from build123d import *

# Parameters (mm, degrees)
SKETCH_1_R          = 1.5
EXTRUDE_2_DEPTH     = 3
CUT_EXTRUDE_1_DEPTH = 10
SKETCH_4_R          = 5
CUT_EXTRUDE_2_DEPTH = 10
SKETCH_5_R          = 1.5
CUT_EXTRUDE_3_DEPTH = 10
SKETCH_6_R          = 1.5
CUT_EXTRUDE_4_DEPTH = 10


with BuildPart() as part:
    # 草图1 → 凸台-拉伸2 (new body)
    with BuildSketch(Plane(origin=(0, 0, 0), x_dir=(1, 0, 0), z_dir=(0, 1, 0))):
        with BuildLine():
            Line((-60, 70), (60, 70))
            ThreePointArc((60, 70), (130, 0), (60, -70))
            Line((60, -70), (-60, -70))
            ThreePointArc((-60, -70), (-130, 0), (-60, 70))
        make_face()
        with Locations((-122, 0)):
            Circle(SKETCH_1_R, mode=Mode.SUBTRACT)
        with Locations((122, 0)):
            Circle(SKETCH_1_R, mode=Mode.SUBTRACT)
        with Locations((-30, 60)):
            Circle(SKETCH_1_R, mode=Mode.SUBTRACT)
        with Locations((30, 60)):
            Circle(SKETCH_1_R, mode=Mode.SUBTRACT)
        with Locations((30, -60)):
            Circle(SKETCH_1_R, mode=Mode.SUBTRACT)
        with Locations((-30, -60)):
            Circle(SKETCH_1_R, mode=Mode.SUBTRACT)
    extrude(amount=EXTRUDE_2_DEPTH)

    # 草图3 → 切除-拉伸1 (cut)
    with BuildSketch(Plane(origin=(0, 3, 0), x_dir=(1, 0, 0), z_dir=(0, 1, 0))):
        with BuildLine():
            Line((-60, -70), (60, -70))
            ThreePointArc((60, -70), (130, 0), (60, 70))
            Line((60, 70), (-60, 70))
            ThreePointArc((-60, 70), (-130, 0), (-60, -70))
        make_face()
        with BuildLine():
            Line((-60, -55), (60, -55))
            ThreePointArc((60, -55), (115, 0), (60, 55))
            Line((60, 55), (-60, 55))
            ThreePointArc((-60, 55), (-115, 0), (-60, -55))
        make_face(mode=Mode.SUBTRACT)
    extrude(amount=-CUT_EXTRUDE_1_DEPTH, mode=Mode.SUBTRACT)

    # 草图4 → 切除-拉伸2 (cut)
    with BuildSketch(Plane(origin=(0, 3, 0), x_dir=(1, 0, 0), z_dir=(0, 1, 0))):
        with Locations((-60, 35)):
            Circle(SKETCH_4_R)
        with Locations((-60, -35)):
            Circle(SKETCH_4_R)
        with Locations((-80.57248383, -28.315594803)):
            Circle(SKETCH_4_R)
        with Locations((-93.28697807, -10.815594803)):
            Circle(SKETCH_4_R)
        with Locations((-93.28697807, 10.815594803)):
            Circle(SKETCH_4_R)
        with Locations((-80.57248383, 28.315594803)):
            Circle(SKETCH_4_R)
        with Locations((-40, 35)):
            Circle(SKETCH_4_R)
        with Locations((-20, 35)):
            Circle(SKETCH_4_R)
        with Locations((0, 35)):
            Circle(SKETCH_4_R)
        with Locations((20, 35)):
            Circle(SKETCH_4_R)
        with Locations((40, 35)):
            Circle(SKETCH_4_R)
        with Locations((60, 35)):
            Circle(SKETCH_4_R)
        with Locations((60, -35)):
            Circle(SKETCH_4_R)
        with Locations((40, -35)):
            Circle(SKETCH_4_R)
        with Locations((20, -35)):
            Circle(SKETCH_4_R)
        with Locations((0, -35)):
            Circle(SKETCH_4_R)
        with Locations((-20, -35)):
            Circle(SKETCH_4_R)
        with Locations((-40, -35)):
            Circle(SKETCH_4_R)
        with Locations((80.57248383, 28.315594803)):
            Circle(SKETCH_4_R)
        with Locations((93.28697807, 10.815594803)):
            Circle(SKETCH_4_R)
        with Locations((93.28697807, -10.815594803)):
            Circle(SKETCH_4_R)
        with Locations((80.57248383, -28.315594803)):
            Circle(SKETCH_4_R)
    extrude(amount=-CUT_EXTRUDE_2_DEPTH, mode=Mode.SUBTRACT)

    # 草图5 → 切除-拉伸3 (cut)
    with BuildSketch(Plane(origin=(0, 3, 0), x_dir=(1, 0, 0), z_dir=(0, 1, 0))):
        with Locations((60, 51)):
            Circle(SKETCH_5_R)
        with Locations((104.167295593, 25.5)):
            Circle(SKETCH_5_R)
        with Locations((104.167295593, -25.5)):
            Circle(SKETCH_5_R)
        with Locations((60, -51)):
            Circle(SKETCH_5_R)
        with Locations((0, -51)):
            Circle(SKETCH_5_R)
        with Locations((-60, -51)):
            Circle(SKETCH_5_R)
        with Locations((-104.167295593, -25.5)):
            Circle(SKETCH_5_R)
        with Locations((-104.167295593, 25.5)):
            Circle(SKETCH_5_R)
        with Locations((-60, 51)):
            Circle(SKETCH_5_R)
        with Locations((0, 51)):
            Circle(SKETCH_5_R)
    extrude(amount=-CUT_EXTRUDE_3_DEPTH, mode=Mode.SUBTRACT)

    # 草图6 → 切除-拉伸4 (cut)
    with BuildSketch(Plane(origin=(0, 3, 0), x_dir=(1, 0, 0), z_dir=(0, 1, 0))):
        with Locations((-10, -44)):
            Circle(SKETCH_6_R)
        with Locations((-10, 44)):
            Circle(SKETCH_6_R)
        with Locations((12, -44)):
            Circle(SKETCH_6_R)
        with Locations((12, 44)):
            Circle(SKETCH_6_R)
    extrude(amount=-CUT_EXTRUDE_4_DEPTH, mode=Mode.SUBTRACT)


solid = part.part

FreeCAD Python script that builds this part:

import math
import FreeCAD as App
import Part
import Sketcher
from FreeCAD import Vector

doc = App.newDocument("Part")
params = doc.addObject("Spreadsheet::Sheet", "Params")
for row, (alias, value) in enumerate([
    ("sketch1_diameter", "3 mm"),
    ("sketch1_radius", "70 mm"),
    ("sketch1_width", "120 mm"),
    ("pad1_length", "3 mm"),
    ("sketch2_radius", "70 mm"),
    ("sketch2_radius2", "55 mm"),
    ("sketch2_width", "120 mm"),
    ("pocket1_length", "10 mm"),
    ("sketch3_diameter", "10 mm"),
    ("pocket2_length", "10 mm"),
    ("sketch4_diameter", "3 mm"),
    ("pocket3_length", "10 mm"),
    ("sketch5_diameter", "3 mm"),
    ("pocket4_length", "10 mm"),
], start=1):
    params.set(f"A{row}", alias)
    params.set(f"B{row}", "=" + value)
    params.setAlias(f"B{row}", alias)

body = doc.addObject("PartDesign::Body", "Body")

sketch1 = body.newObject("Sketcher::SketchObject", "Sketch")
sketch1.AttachmentSupport = (doc.getObject("XZ_Plane"), [""])
sketch1.MapMode = "FlatFace"
sketch1.addGeometry(Part.LineSegment(Vector(60, -70, 0), Vector(-60, -70, 0)), False)
sketch1.addGeometry(Part.ArcOfCircle(Part.Circle(Vector(-60, 0, 0), Vector(0, 0, 1), 70), math.radians(90), math.radians(270)), False)
sketch1.addGeometry(Part.LineSegment(Vector(-60, 70, 0), Vector(60, 70, 0)), False)
sketch1.addGeometry(Part.ArcOfCircle(Part.Circle(Vector(60, 0, 0), Vector(0, 0, 1), 70), math.radians(-90), math.radians(90)), False)
sketch1.addGeometry(Part.Circle(Vector(30, 60, 0), Vector(0, 0, 1), 1.5), False)
sketch1.addGeometry(Part.Circle(Vector(-30, 60, 0), Vector(0, 0, 1), 1.5), False)
sketch1.addGeometry(Part.Circle(Vector(122, 0, 0), Vector(0, 0, 1), 1.5), False)
sketch1.addGeometry(Part.Circle(Vector(30, -60, 0), Vector(0, 0, 1), 1.5), False)
sketch1.addGeometry(Part.Circle(Vector(-122, 0, 0), Vector(0, 0, 1), 1.5), False)
sketch1.addGeometry(Part.Circle(Vector(-30, -60, 0), Vector(0, 0, 1), 1.5), False)
sketch1.addConstraint(Sketcher.Constraint("Tangent", 0, 2, 1, 2))
sketch1.addConstraint(Sketcher.Constraint("Tangent", 1, 1, 2, 1))
sketch1.addConstraint(Sketcher.Constraint("Tangent", 2, 2, 3, 2))
sketch1.addConstraint(Sketcher.Constraint("Tangent", 3, 1, 0, 1))
sketch1.addConstraint(Sketcher.Constraint("Horizontal", 0))
sketch1.addConstraint(Sketcher.Constraint("Horizontal", 2))
sketch1.addConstraint(Sketcher.Constraint("Equal", 4, 5))
sketch1.addConstraint(Sketcher.Constraint("Equal", 5, 6))
sketch1.addConstraint(Sketcher.Constraint("Equal", 6, 7))
sketch1.addConstraint(Sketcher.Constraint("Equal", 7, 8))
sketch1.addConstraint(Sketcher.Constraint("Equal", 8, 9))
sketch1.addConstraint(Sketcher.Constraint("Symmetric", 1, 3, 3, 3, -1, 1))
sketch1.addConstraint(Sketcher.Constraint("Symmetric", 5, 3, 7, 3, -1, 1))
sketch1.addConstraint(Sketcher.Constraint("Symmetric", 6, 3, 8, 3, -1, 1))
sketch1.addConstraint(Sketcher.Constraint("Symmetric", 4, 3, 9, 3, -1, 1))
sketch1.addConstraint(Sketcher.Constraint("Symmetric", 4, 3, 5, 3, -2))
sketch1.addConstraint(Sketcher.Constraint("PointOnObject", 6, 3, -1))
sketch1.addConstraint(Sketcher.Constraint("Diameter", 4, 3.0))
sketch1.addConstraint(Sketcher.Constraint("Radius", 1, 70.0))
sketch1.addConstraint(Sketcher.Constraint("DistanceX", 0, 2, 0, 1, 120.0))
sketch1.addConstraint(Sketcher.Constraint("DistanceX", -1, 1, 4, 3, 30.0))
sketch1.addConstraint(Sketcher.Constraint("DistanceY", -1, 1, 4, 3, 60.0))
sketch1.addConstraint(Sketcher.Constraint("DistanceX", -1, 1, 6, 3, 122.0))
sketch1.setExpression("Constraints[17]", "Params.sketch1_diameter")
sketch1.setExpression("Constraints[18]", "Params.sketch1_radius")
sketch1.setExpression("Constraints[19]", "Params.sketch1_width")
pad1 = body.newObject("PartDesign::Pad", "Pad")
pad1.Profile = sketch1
pad1.setExpression("Length", "Params.pad1_length")
pad1.Reversed = True

sketch2 = body.newObject("Sketcher::SketchObject", "Sketch001")
sketch2.AttachmentSupport = (doc.getObject("XZ_Plane"), [""])
sketch2.MapMode = "FlatFace"
sketch2.AttachmentOffset = App.Placement(Vector(0, 0, -3), App.Rotation())
sketch2.addGeometry(Part.LineSegment(Vector(-60, 70, 0), Vector(60, 70, 0)), False)
sketch2.addGeometry(Part.ArcOfCircle(Part.Circle(Vector(60, 0, 0), Vector(0, 0, 1), 70), math.radians(-90), math.radians(90)), False)
sketch2.addGeometry(Part.LineSegment(Vector(60, -70, 0), Vector(-60, -70, 0)), False)
sketch2.addGeometry(Part.ArcOfCircle(Part.Circle(Vector(-60, 0, 0), Vector(0, 0, 1), 70), math.radians(90), math.radians(270)), False)
sketch2.addGeometry(Part.LineSegment(Vector(60, 55, 0), Vector(-60, 55, 0)), False)
sketch2.addGeometry(Part.ArcOfCircle(Part.Circle(Vector(-60, 0, 0), Vector(0, 0, 1), 55), math.radians(90), math.radians(270)), False)
sketch2.addGeometry(Part.LineSegment(Vector(-60, -55, 0), Vector(60, -55, 0)), False)
sketch2.addGeometry(Part.ArcOfCircle(Part.Circle(Vector(60, 0, 0), Vector(0, 0, 1), 55), math.radians(-90), math.radians(90)), False)
sketch2.addConstraint(Sketcher.Constraint("Tangent", 0, 2, 1, 2))
sketch2.addConstraint(Sketcher.Constraint("Tangent", 1, 1, 2, 1))
sketch2.addConstraint(Sketcher.Constraint("Tangent", 2, 2, 3, 2))
sketch2.addConstraint(Sketcher.Constraint("Tangent", 3, 1, 0, 1))
sketch2.addConstraint(Sketcher.Constraint("Tangent", 4, 2, 5, 1))
sketch2.addConstraint(Sketcher.Constraint("Tangent", 5, 2, 6, 1))
sketch2.addConstraint(Sketcher.Constraint("Tangent", 6, 2, 7, 1))
sketch2.addConstraint(Sketcher.Constraint("Tangent", 7, 2, 4, 1))
sketch2.addConstraint(Sketcher.Constraint("Horizontal", 0))
sketch2.addConstraint(Sketcher.Constraint("Horizontal", 2))
sketch2.addConstraint(Sketcher.Constraint("Horizontal", 4))
sketch2.addConstraint(Sketcher.Constraint("Horizontal", 6))
sketch2.addConstraint(Sketcher.Constraint("Coincident", 5, 3, 3, 3))
sketch2.addConstraint(Sketcher.Constraint("Symmetric", 1, 3, 3, 3, -1, 1))
sketch2.addConstraint(Sketcher.Constraint("Vertical", 7, 3, 0, 2))
sketch2.addConstraint(Sketcher.Constraint("Radius", 1, 70.0))
sketch2.addConstraint(Sketcher.Constraint("Radius", 5, 55.0))
sketch2.addConstraint(Sketcher.Constraint("DistanceX", 0, 1, 0, 2, 120.0))
sketch2.setExpression("Constraints[15]", "Params.sketch2_radius")
sketch2.setExpression("Constraints[16]", "Params.sketch2_radius2")
sketch2.setExpression("Constraints[17]", "Params.sketch2_width")
pocket1 = body.newObject("PartDesign::Pocket", "Pocket")
pocket1.Profile = sketch2
pocket1.setExpression("Length", "Params.pocket1_length")
pocket1.Reversed = True

sketch3 = body.newObject("Sketcher::SketchObject", "Sketch002")
sketch3.AttachmentSupport = (doc.getObject("XZ_Plane"), [""])
sketch3.MapMode = "FlatFace"
sketch3.AttachmentOffset = App.Placement(Vector(0, 0, -3), App.Rotation())
sketch3.addGeometry(Part.Circle(Vector(-60, -35, 0), Vector(0, 0, 1), 5), False)
sketch3.addGeometry(Part.Circle(Vector(-60, 35, 0), Vector(0, 0, 1), 5), False)
sketch3.addGeometry(Part.Circle(Vector(-81, 28, 0), Vector(0, 0, 1), 5), False)
sketch3.addGeometry(Part.Circle(Vector(-93, 11, 0), Vector(0, 0, 1), 5), False)
sketch3.addGeometry(Part.Circle(Vector(-93, -11, 0), Vector(0, 0, 1), 5), False)
sketch3.addGeometry(Part.Circle(Vector(-81, -28, 0), Vector(0, 0, 1), 5), False)
sketch3.addGeometry(Part.Circle(Vector(-40, -35, 0), Vector(0, 0, 1), 5), False)
sketch3.addGeometry(Part.Circle(Vector(-20, -35, 0), Vector(0, 0, 1), 5), False)
sketch3.addGeometry(Part.Circle(Vector(0, -35, 0), Vector(0, 0, 1), 5), False)
sketch3.addGeometry(Part.Circle(Vector(20, -35, 0), Vector(0, 0, 1), 5), False)
sketch3.addGeometry(Part.Circle(Vector(40, -35, 0), Vector(0, 0, 1), 5), False)
sketch3.addGeometry(Part.Circle(Vector(60, -35, 0), Vector(0, 0, 1), 5), False)
sketch3.addGeometry(Part.Circle(Vector(60, 35, 0), Vector(0, 0, 1), 5), False)
sketch3.addGeometry(Part.Circle(Vector(40, 35, 0), Vector(0, 0, 1), 5), False)
sketch3.addGeometry(Part.Circle(Vector(20, 35, 0), Vector(0, 0, 1), 5), False)
sketch3.addGeometry(Part.Circle(Vector(0, 35, 0), Vector(0, 0, 1), 5), False)
sketch3.addGeometry(Part.Circle(Vector(-20, 35, 0), Vector(0, 0, 1), 5), False)
sketch3.addGeometry(Part.Circle(Vector(-40, 35, 0), Vector(0, 0, 1), 5), False)
sketch3.addGeometry(Part.Circle(Vector(81, -28, 0), Vector(0, 0, 1), 5), False)
sketch3.addGeometry(Part.Circle(Vector(93, -11, 0), Vector(0, 0, 1), 5), False)
sketch3.addGeometry(Part.Circle(Vector(93, 11, 0), Vector(0, 0, 1), 5), False)
sketch3.addGeometry(Part.Circle(Vector(81, 28, 0), Vector(0, 0, 1), 5), False)
sketch3.addConstraint(Sketcher.Constraint("Equal", 0, 1))
sketch3.addConstraint(Sketcher.Constraint("Equal", 1, 2))
sketch3.addConstraint(Sketcher.Constraint("Equal", 2, 3))
sketch3.addConstraint(Sketcher.Constraint("Equal", 3, 4))
sketch3.addConstraint(Sketcher.Constraint("Equal", 4, 5))
sketch3.addConstraint(Sketcher.Constraint("Equal", 5, 6))
sketch3.addConstraint(Sketcher.Constraint("Equal", 6, 7))
sketch3.addConstraint(Sketcher.Constraint("Equal", 7, 8))
sketch3.addConstraint(Sketcher.Constraint("Equal", 8, 9))
sketch3.addConstraint(Sketcher.Constraint("Equal", 9, 10))
sketch3.addConstraint(Sketcher.Constraint("Equal", 10, 11))
sketch3.addConstraint(Sketcher.Constraint("Equal", 11, 12))
sketch3.addConstraint(Sketcher.Constraint("Equal", 12, 13))
sketch3.addConstraint(Sketcher.Constraint("Equal", 13, 14))
sketch3.addConstraint(Sketcher.Constraint("Equal", 14, 15))
sketch3.addConstraint(Sketcher.Constraint("Equal", 15, 16))
sketch3.addConstraint(Sketcher.Constraint("Equal", 16, 17))
sketch3.addConstraint(Sketcher.Constraint("Equal", 17, 18))
sketch3.addConstraint(Sketcher.Constraint("Equal", 18, 19))
sketch3.addConstraint(Sketcher.Constraint("Equal", 19, 20))
sketch3.addConstraint(Sketcher.Constraint("Equal", 20, 21))
sketch3.addConstraint(Sketcher.Constraint("Symmetric", 1, 3, 11, 3, -1, 1))
sketch3.addConstraint(Sketcher.Constraint("Symmetric", 0, 3, 12, 3, -1, 1))
sketch3.addConstraint(Sketcher.Constraint("Symmetric", 6, 3, 13, 3, -1, 1))
sketch3.addConstraint(Sketcher.Constraint("Symmetric", 7, 3, 14, 3, -1, 1))
sketch3.addConstraint(Sketcher.Constraint("Symmetric", 8, 3, 15, 3, -1, 1))
sketch3.addConstraint(Sketcher.Constraint("Symmetric", 9, 3, 16, 3, -1, 1))
sketch3.addConstraint(Sketcher.Constraint("Symmetric", 10, 3, 17, 3, -1, 1))
sketch3.addConstraint(Sketcher.Constraint("Symmetric", 2, 3, 18, 3, -1, 1))
sketch3.addConstraint(Sketcher.Constraint("Symmetric", 3, 3, 19, 3, -1, 1))
sketch3.addConstraint(Sketcher.Constraint("Symmetric", 4, 3, 20, 3, -1, 1))
sketch3.addConstraint(Sketcher.Constraint("Symmetric", 5, 3, 21, 3, -1, 1))
sketch3.addConstraint(Sketcher.Constraint("Symmetric", 7, 3, 9, 3, -2))
sketch3.addConstraint(Sketcher.Constraint("Symmetric", 6, 3, 10, 3, -2))
sketch3.addConstraint(Sketcher.Constraint("Symmetric", 0, 3, 11, 3, -2))
sketch3.addConstraint(Sketcher.Constraint("Symmetric", 5, 3, 18, 3, -2))
sketch3.addConstraint(Sketcher.Constraint("Symmetric", 4, 3, 19, 3, -2))
sketch3.addConstraint(Sketcher.Constraint("PointOnObject", 8, 3, -2))
sketch3.addConstraint(Sketcher.Constraint("Horizontal", 0, 3, 6, 3))
sketch3.addConstraint(Sketcher.Constraint("Horizontal", 6, 3, 7, 3))
sketch3.addConstraint(Sketcher.Constraint("Horizontal", 7, 3, 8, 3))
sketch3.addConstraint(Sketcher.Constraint("Diameter", 0, 10.0))
sketch3.addConstraint(Sketcher.Constraint("DistanceX", 0, 3, -1, 1, 60.0))
sketch3.addConstraint(Sketcher.Constraint("DistanceY", 0, 3, -1, 1, 35.0))
sketch3.addConstraint(Sketcher.Constraint("DistanceX", 6, 3, -1, 1, 40.0))
sketch3.addConstraint(Sketcher.Constraint("DistanceX", 7, 3, -1, 1, 20.0))
sketch3.addConstraint(Sketcher.Constraint("DistanceY", 3, 3, 2, 3, 17.5))
sketch3.addConstraint(Sketcher.Constraint("DistanceX", 3, 3, -1, 1, 93.286978))
sketch3.addConstraint(Sketcher.Constraint("DistanceY", 4, 3, 3, 3, 21.63119))
sketch3.addConstraint(Sketcher.Constraint("DistanceX", 2, 3, -1, 1, 80.572484))
sketch3.setExpression("Constraints[41]", "Params.sketch3_diameter")
pocket2 = body.newObject("PartDesign::Pocket", "Pocket001")
pocket2.Profile = sketch3
pocket2.setExpression("Length", "Params.pocket2_length")
pocket2.Reversed = True

sketch4 = body.newObject("Sketcher::SketchObject", "Sketch003")
sketch4.AttachmentSupport = (doc.getObject("XZ_Plane"), [""])
sketch4.MapMode = "FlatFace"
sketch4.AttachmentOffset = App.Placement(Vector(0, 0, -3), App.Rotation())
sketch4.addGeometry(Part.Circle(Vector(60, -51, 0), Vector(0, 0, 1), 1.5), False)
sketch4.addGeometry(Part.Circle(Vector(104.2, -25.5, 0), Vector(0, 0, 1), 1.5), False)
sketch4.addGeometry(Part.Circle(Vector(104.2, 25.5, 0), Vector(0, 0, 1), 1.5), False)
sketch4.addGeometry(Part.Circle(Vector(60, 51, 0), Vector(0, 0, 1), 1.5), False)
sketch4.addGeometry(Part.Circle(Vector(0, 51, 0), Vector(0, 0, 1), 1.5), False)
sketch4.addGeometry(Part.Circle(Vector(-60, 51, 0), Vector(0, 0, 1), 1.5), False)
sketch4.addGeometry(Part.Circle(Vector(-104.2, 25.5, 0), Vector(0, 0, 1), 1.5), False)
sketch4.addGeometry(Part.Circle(Vector(-104.2, -25.5, 0), Vector(0, 0, 1), 1.5), False)
sketch4.addGeometry(Part.Circle(Vector(-60, -51, 0), Vector(0, 0, 1), 1.5), False)
sketch4.addGeometry(Part.Circle(Vector(0, -51, 0), Vector(0, 0, 1), 1.5), False)
sketch4.addConstraint(Sketcher.Constraint("Equal", 0, 1))
sketch4.addConstraint(Sketcher.Constraint("Equal", 1, 2))
sketch4.addConstraint(Sketcher.Constraint("Equal", 2, 3))
sketch4.addConstraint(Sketcher.Constraint("Equal", 3, 4))
sketch4.addConstraint(Sketcher.Constraint("Equal", 4, 5))
sketch4.addConstraint(Sketcher.Constraint("Equal", 5, 6))
sketch4.addConstraint(Sketcher.Constraint("Equal", 6, 7))
sketch4.addConstraint(Sketcher.Constraint("Equal", 7, 8))
sketch4.addConstraint(Sketcher.Constraint("Equal", 8, 9))
sketch4.addConstraint(Sketcher.Constraint("Symmetric", 0, 3, 5, 3, -1, 1))
sketch4.addConstraint(Sketcher.Constraint("Symmetric", 1, 3, 6, 3, -1, 1))
sketch4.addConstraint(Sketcher.Constraint("Symmetric", 2, 3, 7, 3, -1, 1))
sketch4.addConstraint(Sketcher.Constraint("Symmetric", 3, 3, 8, 3, -1, 1))
sketch4.addConstraint(Sketcher.Constraint("Symmetric", 4, 3, 9, 3, -1, 1))
sketch4.addConstraint(Sketcher.Constraint("Symmetric", 3, 3, 5, 3, -2))
sketch4.addConstraint(Sketcher.Constraint("Symmetric", 2, 3, 6, 3, -2))
sketch4.addConstraint(Sketcher.Constraint("PointOnObject", 4, 3, -2))
sketch4.addConstraint(Sketcher.Constraint("Horizontal", 3, 3, 4, 3))
sketch4.addConstraint(Sketcher.Constraint("Diameter", 0, 3.0))
sketch4.addConstraint(Sketcher.Constraint("DistanceX", -1, 1, 0, 3, 60.0))
sketch4.addConstraint(Sketcher.Constraint("DistanceY", 0, 3, -1, 1, 51.0))
sketch4.addConstraint(Sketcher.Constraint("DistanceY", 1, 3, 2, 3, 51.0))
sketch4.addConstraint(Sketcher.Constraint("DistanceX", 6, 3, 2, 3, 208.334591))
sketch4.setExpression("Constraints[18]", "Params.sketch4_diameter")
pocket3 = body.newObject("PartDesign::Pocket", "Pocket002")
pocket3.Profile = sketch4
pocket3.setExpression("Length", "Params.pocket3_length")
pocket3.Reversed = True

sketch5 = body.newObject("Sketcher::SketchObject", "Sketch004")
sketch5.AttachmentSupport = (doc.getObject("XZ_Plane"), [""])
sketch5.MapMode = "FlatFace"
sketch5.AttachmentOffset = App.Placement(Vector(0, 0, -3), App.Rotation())
sketch5.addGeometry(Part.Circle(Vector(-10, 44, 0), Vector(0, 0, 1), 1.5), False)
sketch5.addGeometry(Part.Circle(Vector(-10, -44, 0), Vector(0, 0, 1), 1.5), False)
sketch5.addGeometry(Part.Circle(Vector(12, 44, 0), Vector(0, 0, 1), 1.5), False)
sketch5.addGeometry(Part.Circle(Vector(12, -44, 0), Vector(0, 0, 1), 1.5), False)
sketch5.addConstraint(Sketcher.Constraint("Equal", 0, 1))
sketch5.addConstraint(Sketcher.Constraint("Equal", 1, 2))
sketch5.addConstraint(Sketcher.Constraint("Equal", 2, 3))
sketch5.addConstraint(Sketcher.Constraint("Symmetric", 0, 3, 1, 3, -1))
sketch5.addConstraint(Sketcher.Constraint("Symmetric", 2, 3, 3, 3, -1))
sketch5.addConstraint(Sketcher.Constraint("Horizontal", 0, 3, 2, 3))
sketch5.addConstraint(Sketcher.Constraint("Diameter", 0, 3.0))
sketch5.addConstraint(Sketcher.Constraint("DistanceX", 0, 3, -1, 1, 10.0))
sketch5.addConstraint(Sketcher.Constraint("DistanceY", -1, 1, 0, 3, 44.0))
sketch5.addConstraint(Sketcher.Constraint("DistanceX", -1, 1, 2, 3, 12.0))
sketch5.setExpression("Constraints[6]", "Params.sketch5_diameter")
pocket4 = body.newObject("PartDesign::Pocket", "Pocket003")
pocket4.Profile = sketch5
pocket4.setExpression("Length", "Params.pocket4_length")
pocket4.Reversed = True

doc.recompute()
